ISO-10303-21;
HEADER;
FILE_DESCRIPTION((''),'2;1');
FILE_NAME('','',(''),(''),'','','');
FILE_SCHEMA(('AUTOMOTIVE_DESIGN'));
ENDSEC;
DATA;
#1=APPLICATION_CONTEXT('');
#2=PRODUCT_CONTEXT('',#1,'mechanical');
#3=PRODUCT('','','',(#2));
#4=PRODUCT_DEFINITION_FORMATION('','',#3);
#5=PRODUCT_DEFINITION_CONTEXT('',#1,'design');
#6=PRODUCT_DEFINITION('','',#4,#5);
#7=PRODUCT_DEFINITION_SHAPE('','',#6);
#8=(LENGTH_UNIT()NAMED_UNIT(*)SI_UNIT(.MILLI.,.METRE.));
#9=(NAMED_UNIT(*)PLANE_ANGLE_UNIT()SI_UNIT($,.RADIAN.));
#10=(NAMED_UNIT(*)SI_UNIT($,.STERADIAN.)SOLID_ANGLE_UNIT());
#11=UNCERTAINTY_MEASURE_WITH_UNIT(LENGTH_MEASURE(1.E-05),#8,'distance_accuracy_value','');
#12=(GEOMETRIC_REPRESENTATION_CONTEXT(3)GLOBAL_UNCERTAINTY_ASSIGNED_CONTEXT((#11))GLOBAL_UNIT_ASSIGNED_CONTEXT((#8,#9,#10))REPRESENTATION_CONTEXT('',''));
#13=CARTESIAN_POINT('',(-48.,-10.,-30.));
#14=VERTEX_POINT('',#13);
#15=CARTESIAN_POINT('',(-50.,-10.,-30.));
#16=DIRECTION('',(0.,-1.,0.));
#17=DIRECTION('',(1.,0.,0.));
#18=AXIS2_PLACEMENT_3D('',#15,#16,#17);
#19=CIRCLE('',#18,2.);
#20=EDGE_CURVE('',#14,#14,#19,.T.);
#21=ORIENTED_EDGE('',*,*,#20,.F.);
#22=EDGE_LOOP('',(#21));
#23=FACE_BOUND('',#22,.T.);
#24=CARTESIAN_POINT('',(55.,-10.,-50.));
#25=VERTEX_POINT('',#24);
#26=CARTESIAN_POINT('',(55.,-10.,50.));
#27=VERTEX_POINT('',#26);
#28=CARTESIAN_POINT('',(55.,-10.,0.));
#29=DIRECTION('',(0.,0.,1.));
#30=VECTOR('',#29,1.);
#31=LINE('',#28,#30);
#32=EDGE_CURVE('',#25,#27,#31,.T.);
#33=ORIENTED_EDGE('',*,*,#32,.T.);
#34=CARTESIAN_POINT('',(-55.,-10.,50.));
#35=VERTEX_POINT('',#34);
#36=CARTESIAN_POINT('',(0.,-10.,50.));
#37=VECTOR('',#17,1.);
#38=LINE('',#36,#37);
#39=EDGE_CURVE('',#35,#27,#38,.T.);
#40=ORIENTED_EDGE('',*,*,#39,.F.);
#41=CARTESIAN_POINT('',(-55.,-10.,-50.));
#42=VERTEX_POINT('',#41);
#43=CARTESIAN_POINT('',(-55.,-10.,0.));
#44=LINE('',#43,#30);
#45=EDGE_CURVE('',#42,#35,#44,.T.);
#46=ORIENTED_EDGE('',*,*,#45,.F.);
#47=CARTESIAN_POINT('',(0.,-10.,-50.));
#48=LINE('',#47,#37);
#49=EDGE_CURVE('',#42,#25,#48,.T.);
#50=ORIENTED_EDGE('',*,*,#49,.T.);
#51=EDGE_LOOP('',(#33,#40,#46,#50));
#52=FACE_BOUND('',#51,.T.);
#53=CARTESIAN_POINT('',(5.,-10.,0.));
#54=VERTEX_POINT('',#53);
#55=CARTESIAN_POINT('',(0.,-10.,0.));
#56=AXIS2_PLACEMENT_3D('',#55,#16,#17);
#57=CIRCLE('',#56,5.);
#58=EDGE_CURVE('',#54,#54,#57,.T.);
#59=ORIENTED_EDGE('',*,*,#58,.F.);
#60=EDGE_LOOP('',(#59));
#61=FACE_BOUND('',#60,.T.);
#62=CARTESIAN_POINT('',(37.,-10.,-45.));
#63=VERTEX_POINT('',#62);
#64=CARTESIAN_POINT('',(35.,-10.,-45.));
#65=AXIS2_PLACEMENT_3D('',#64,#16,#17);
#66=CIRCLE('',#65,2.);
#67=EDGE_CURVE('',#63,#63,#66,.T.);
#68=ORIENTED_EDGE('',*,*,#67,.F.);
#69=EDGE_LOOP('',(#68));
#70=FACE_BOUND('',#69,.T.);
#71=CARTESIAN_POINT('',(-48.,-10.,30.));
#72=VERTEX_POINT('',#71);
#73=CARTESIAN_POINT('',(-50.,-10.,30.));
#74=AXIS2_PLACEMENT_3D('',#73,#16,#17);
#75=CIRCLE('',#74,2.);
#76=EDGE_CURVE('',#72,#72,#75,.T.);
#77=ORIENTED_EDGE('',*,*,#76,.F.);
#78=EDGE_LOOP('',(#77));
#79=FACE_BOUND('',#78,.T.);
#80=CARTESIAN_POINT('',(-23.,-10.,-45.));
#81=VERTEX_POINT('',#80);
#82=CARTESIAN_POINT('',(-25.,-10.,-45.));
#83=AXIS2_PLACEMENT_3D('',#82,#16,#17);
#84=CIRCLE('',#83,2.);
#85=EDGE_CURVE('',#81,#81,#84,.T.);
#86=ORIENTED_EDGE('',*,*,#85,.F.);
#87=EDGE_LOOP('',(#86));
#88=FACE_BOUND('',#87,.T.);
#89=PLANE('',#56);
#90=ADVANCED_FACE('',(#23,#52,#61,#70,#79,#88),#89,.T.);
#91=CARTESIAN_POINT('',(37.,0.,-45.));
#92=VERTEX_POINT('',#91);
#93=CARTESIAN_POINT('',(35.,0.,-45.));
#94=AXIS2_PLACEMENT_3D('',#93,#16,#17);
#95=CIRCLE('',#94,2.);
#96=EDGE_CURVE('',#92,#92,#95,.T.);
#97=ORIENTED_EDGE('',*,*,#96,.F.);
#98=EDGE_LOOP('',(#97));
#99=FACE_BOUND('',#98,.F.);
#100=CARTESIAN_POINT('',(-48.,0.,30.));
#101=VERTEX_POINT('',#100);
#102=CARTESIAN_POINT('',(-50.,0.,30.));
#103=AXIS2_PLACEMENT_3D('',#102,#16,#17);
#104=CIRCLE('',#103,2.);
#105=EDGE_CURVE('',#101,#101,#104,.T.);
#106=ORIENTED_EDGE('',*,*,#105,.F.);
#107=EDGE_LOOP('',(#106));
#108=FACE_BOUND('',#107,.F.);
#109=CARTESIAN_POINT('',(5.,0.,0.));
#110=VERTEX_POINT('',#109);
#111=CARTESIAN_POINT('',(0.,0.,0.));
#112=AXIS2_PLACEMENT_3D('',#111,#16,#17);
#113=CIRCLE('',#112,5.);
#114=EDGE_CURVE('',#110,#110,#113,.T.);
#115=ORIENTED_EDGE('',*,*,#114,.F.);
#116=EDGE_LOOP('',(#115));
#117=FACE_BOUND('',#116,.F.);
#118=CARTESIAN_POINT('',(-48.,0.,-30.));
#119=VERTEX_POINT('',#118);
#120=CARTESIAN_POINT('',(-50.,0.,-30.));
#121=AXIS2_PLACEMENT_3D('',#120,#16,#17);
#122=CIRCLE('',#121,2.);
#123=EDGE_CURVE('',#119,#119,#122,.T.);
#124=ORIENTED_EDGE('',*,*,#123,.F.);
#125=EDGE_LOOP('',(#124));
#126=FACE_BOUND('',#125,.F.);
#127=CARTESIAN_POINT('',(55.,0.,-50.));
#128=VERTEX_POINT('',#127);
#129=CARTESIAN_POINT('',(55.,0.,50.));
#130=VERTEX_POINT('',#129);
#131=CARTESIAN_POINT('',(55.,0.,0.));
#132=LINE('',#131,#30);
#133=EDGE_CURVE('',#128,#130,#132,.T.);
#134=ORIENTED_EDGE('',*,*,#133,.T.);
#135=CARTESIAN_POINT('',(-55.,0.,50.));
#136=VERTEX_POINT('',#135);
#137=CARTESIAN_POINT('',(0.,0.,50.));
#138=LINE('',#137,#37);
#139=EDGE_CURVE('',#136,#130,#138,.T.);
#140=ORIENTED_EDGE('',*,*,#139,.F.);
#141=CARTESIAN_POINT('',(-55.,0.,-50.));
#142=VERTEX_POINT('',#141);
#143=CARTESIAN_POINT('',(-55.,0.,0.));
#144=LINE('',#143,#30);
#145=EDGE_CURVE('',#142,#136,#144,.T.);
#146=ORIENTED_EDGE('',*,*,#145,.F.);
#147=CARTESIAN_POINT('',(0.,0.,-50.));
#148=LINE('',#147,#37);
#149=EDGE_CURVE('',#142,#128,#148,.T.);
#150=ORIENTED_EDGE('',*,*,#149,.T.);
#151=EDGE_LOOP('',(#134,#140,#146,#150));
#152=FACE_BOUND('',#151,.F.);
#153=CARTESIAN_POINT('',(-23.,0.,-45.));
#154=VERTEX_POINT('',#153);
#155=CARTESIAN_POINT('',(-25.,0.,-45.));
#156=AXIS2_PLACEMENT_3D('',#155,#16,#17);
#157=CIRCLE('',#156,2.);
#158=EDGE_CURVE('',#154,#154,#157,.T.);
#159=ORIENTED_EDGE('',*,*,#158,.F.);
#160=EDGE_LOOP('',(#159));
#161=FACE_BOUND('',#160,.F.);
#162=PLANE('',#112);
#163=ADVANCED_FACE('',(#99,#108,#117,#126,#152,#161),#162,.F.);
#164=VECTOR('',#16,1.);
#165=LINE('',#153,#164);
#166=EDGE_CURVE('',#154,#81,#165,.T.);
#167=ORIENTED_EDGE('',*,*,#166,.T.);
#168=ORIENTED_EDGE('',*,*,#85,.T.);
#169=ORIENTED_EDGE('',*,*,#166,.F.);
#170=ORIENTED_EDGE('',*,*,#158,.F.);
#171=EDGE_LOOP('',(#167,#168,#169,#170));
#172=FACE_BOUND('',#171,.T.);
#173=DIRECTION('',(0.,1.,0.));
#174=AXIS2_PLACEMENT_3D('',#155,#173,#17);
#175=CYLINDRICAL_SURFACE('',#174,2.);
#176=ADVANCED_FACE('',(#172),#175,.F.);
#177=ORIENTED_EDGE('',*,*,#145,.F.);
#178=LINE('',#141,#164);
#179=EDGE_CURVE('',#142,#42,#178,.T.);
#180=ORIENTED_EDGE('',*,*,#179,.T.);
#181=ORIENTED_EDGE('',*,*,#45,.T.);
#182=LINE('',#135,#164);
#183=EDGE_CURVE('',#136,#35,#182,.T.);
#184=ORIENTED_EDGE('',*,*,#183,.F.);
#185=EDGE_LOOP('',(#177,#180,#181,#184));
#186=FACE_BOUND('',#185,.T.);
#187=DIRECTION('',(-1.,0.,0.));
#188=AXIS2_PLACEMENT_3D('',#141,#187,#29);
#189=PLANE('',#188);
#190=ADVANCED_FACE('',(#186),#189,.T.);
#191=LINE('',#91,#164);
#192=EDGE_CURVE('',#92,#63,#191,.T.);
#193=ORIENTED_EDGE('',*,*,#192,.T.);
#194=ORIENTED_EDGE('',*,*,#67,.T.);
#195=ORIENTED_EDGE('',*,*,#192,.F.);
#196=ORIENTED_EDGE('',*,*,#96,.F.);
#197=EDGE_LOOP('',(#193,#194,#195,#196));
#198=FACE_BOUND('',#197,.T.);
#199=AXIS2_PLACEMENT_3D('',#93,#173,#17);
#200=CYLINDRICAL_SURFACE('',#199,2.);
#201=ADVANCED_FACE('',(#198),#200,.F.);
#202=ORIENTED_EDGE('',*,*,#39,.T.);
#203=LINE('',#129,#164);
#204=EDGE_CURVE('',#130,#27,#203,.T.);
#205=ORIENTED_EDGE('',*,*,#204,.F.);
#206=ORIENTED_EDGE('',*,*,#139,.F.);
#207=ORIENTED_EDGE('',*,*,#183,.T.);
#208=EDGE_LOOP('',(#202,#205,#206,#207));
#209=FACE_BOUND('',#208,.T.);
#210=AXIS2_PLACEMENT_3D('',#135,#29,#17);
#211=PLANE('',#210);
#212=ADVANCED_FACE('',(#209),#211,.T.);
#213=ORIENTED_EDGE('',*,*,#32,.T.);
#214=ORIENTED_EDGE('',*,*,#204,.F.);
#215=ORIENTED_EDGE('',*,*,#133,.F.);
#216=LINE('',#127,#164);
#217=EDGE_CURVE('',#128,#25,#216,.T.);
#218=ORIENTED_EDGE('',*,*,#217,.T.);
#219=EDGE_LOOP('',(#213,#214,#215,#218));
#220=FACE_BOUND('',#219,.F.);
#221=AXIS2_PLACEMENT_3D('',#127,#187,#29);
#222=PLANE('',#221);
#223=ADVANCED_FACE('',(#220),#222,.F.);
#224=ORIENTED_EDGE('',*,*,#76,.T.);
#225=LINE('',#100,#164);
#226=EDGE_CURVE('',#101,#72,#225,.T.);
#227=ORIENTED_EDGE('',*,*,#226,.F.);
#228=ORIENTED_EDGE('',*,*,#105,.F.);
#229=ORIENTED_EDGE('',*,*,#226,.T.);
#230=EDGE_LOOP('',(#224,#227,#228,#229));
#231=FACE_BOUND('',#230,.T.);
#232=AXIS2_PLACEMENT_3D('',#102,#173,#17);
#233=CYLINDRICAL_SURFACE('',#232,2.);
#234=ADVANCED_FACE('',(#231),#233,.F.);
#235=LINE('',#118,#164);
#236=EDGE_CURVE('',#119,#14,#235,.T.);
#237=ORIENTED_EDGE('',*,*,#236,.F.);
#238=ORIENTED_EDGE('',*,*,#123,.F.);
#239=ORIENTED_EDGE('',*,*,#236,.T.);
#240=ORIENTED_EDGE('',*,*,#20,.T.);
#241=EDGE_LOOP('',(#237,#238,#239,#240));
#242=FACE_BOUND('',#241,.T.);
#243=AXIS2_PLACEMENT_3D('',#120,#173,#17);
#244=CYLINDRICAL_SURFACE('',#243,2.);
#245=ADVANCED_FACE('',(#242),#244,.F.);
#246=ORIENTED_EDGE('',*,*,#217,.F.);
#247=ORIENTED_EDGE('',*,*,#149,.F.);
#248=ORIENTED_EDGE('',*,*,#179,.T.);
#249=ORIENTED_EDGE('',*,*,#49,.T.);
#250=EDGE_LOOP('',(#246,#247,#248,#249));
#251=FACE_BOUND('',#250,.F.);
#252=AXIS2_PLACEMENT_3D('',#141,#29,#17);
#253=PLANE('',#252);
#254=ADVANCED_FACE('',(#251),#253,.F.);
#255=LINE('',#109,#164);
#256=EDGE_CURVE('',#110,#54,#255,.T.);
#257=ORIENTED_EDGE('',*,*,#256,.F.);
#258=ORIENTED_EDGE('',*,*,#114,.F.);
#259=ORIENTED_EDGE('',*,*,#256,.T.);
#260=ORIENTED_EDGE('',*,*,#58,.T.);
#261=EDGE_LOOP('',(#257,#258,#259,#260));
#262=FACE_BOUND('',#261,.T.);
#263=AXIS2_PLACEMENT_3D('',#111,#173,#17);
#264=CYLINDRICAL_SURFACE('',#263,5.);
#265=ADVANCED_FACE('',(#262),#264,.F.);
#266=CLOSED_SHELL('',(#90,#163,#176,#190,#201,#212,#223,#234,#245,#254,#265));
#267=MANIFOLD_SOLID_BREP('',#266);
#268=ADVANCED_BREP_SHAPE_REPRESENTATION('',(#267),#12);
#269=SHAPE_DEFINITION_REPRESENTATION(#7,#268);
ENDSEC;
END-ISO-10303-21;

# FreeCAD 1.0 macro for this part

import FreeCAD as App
import Part
import Sketcher

V = App.Vector

doc = App.newDocument("Part")
params = doc.addObject("Spreadsheet::Sheet", "Params")
for row, (alias, value) in enumerate([
    ("sketch1_diameter", "4 mm"),
    ("sketch1_diameter2", "10 mm"),
    ("sketch1_width", "110 mm"),
    ("sketch1_height", "100 mm"),
    ("pad1_length", "10 mm"),
], start=1):
    params.set(f"A{row}", alias)
    params.set(f"B{row}", "=" + value)
    params.setAlias(f"B{row}", alias)

body = doc.addObject("PartDesign::Body", "Body")

# Sketch on XZ plane
sketch1 = body.newObject("Sketcher::SketchObject", "Sketch")
sketch1.AttachmentSupport = (doc.getObject("XZ_Plane"), [""])
sketch1.MapMode = "FlatFace"
sketch1.addGeometry(Part.LineSegment(V(-55, 50, 0), V(-55, -50, 0)), False)
sketch1.addGeometry(Part.LineSegment(V(-55, -50, 0), V(55, -50, 0)), False)
sketch1.addGeometry(Part.LineSegment(V(55, -50, 0), V(55, 50, 0)), False)
sketch1.addGeometry(Part.LineSegment(V(55, 50, 0), V(-55, 50, 0)), False)
sketch1.addGeometry(Part.Circle(V(-50, -30, 0), V(0, 0, 1), 2), False)
sketch1.addGeometry(Part.Circle(V(-25, -45, 0), V(0, 0, 1), 2), False)
sketch1.addGeometry(Part.Circle(V(35, -45, 0), V(0, 0, 1), 2), False)
sketch1.addGeometry(Part.Circle(V(-50, 30, 0), V(0, 0, 1), 2), False)
sketch1.addGeometry(Part.Circle(V(0, 0, 0), V(0, 0, 1), 5), False)
sketch1.addConstraint(Sketcher.Constraint("Coincident", 0, 2, 1, 1))
sketch1.addConstraint(Sketcher.Constraint("Coincident", 1, 2, 2, 1))
sketch1.addConstraint(Sketcher.Constraint("Coincident", 2, 2, 3, 1))
sketch1.addConstraint(Sketcher.Constraint("Coincident", 3, 2, 0, 1))
sketch1.addConstraint(Sketcher.Constraint("Vertical", 0))
sketch1.addConstraint(Sketcher.Constraint("Horizontal", 1))
sketch1.addConstraint(Sketcher.Constraint("Vertical", 2))
sketch1.addConstraint(Sketcher.Constraint("Horizontal", 3))
sketch1.addConstraint(Sketcher.Constraint("Coincident", 8, 3, -1, 1))
sketch1.addConstraint(Sketcher.Constraint("Equal", 4, 5))
sketch1.addConstraint(Sketcher.Constraint("Equal", 5, 6))
sketch1.addConstraint(Sketcher.Constraint("Equal", 6, 7))
sketch1.addConstraint(Sketcher.Constraint("Symmetric", 0, 2, 2, 2, -1, 1))
sketch1.addConstraint(Sketcher.Constraint("Symmetric", 4, 3, 7, 3, -1))
sketch1.addConstraint(Sketcher.Constraint("Horizontal", 5, 3, 6, 3))
sketch1.addConstraint(Sketcher.Constraint("Diameter", 4, 4.0))
sketch1.addConstraint(Sketcher.Constraint("Diameter", 8, 10.0))
sketch1.addConstraint(Sketcher.Constraint("DistanceX", 1, 1, 1, 2, 110.0))
sketch1.addConstraint(Sketcher.Constraint("DistanceY", 0, 2, 0, 1, 100.0))
sketch1.addConstraint(Sketcher.Constraint("DistanceX", 4, 3, -1, 1, 50.0))
sketch1.addConstraint(Sketcher.Constraint("DistanceY", 4, 3, -1, 1, 30.0))
sketch1.addConstraint(Sketcher.Constraint("DistanceX", 5, 3, -1, 1, 25.0))
sketch1.addConstraint(Sketcher.Constraint("DistanceY", 5, 3, -1, 1, 45.0))
sketch1.addConstraint(Sketcher.Constraint("DistanceX", -1, 1, 6, 3, 35.0))
sketch1.setExpression("Constraints[15]", "Params.sketch1_diameter")
sketch1.setExpression("Constraints[16]", "Params.sketch1_diameter2")
sketch1.setExpression("Constraints[17]", "Params.sketch1_width")
sketch1.setExpression("Constraints[18]", "Params.sketch1_height")
pad1 = body.newObject("PartDesign::Pad", "Pad")
pad1.Profile = sketch1
pad1.setExpression("Length", "Params.pad1_length")

doc.recompute()
